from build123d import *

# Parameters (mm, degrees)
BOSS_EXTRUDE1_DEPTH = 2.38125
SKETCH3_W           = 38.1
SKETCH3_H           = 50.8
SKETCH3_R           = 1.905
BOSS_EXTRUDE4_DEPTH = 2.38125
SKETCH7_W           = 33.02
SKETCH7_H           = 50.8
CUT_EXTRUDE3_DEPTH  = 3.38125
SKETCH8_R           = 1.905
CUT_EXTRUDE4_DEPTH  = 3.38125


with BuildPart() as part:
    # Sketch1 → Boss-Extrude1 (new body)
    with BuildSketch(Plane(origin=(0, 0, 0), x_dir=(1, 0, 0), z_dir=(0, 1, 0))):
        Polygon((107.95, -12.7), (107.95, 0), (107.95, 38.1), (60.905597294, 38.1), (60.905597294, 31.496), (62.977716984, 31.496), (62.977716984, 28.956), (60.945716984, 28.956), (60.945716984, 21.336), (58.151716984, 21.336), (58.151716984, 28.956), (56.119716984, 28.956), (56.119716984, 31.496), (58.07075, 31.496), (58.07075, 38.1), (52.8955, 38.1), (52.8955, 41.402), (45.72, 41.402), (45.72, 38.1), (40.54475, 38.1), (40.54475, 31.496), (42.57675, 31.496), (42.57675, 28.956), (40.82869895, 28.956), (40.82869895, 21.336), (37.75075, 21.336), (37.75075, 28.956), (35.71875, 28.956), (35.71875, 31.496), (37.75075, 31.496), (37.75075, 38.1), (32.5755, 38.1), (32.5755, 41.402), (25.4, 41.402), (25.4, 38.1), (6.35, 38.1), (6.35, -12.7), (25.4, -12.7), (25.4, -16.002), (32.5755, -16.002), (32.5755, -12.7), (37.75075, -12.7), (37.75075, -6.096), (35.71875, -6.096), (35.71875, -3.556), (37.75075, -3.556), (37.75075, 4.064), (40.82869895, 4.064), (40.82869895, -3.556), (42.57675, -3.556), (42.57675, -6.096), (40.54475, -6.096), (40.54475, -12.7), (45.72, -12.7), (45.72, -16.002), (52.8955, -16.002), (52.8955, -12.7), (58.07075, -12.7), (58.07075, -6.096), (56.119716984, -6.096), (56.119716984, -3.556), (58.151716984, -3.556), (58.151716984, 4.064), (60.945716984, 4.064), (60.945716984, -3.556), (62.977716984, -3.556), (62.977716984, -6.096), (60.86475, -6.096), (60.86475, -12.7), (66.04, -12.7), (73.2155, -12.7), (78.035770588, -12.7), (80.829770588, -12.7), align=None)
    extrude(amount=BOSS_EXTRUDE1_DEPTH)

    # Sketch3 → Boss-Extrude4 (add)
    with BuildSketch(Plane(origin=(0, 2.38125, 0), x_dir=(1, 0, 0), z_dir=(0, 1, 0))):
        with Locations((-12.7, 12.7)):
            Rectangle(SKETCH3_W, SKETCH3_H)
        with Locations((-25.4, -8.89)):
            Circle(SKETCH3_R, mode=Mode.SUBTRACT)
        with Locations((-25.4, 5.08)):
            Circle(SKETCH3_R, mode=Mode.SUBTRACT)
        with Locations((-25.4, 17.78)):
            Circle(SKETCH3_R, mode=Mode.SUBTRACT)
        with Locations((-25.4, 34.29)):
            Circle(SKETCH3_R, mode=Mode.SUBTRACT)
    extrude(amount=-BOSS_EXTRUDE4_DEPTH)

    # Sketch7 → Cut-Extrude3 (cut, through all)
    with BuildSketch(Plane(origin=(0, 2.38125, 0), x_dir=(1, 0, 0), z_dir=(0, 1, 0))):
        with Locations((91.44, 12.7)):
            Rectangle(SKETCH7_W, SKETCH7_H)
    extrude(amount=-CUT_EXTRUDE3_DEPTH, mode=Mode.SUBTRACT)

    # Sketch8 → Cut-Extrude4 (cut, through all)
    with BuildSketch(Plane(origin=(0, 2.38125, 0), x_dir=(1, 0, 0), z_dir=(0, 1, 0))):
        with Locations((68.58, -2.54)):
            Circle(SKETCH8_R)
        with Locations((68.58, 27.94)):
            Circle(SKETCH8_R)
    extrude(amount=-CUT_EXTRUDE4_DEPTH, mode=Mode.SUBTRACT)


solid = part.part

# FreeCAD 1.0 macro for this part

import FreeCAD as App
import Part
import Sketcher
Q = App.Units.Quantity

doc = App.newDocument("Part")
body = doc.addObject("PartDesign::Body", "Body")

sketch1 = body.newObject("Sketcher::SketchObject", "Sketch")
sketch1.AttachmentSupport = (doc.getObject("XZ_Plane"), [""])
sketch1.MapMode = "FlatFace"
sketch1.addGeometry([
    Part.LineSegment(App.Vector(107.95, 12.7, 0), App.Vector(107.95, -38.1, 0)),
    Part.LineSegment(App.Vector(107.95, -38.1, 0), App.Vector(60.905597, -38.1, 0)),
    Part.LineSegment(App.Vector(60.905597, -38.1, 0), App.Vector(60.905597, -31.496, 0)),
    Part.LineSegment(App.Vector(60.905597, -31.496, 0), App.Vector(62.977717, -31.496, 0)),
    Part.LineSegment(App.Vector(62.977717, -31.496, 0), App.Vector(62.977717, -28.956, 0)),
    Part.LineSegment(App.Vector(62.977717, -28.956, 0), App.Vector(60.945717, -28.956, 0)),
    Part.LineSegment(App.Vector(60.945717, -28.956, 0), App.Vector(60.945717, -21.336, 0)),
    Part.LineSegment(App.Vector(60.945717, -21.336, 0), App.Vector(58.151717, -21.336, 0)),
    Part.LineSegment(App.Vector(58.151717, -21.336, 0), App.Vector(58.151717, -28.956, 0)),
    Part.LineSegment(App.Vector(58.151717, -28.956, 0), App.Vector(56.119717, -28.956, 0)),
    Part.LineSegment(App.Vector(56.119717, -28.956, 0), App.Vector(56.119717, -31.496, 0)),
    Part.LineSegment(App.Vector(56.119717, -31.496, 0), App.Vector(58.07075, -31.496, 0)),
    Part.LineSegment(App.Vector(58.07075, -31.496, 0), App.Vector(58.07075, -38.1, 0)),
    Part.LineSegment(App.Vector(58.07075, -38.1, 0), App.Vector(52.8955, -38.1, 0)),
    Part.LineSegment(App.Vector(52.8955, -38.1, 0), App.Vector(52.8955, -41.402, 0)),
    Part.LineSegment(App.Vector(52.8955, -41.402, 0), App.Vector(45.72, -41.402, 0)),
    Part.LineSegment(App.Vector(45.72, -41.402, 0), App.Vector(45.72, -38.1, 0)),
    Part.LineSegment(App.Vector(45.72, -38.1, 0), App.Vector(40.54475, -38.1, 0)),
    Part.LineSegment(App.Vector(40.54475, -38.1, 0), App.Vector(40.54475, -31.496, 0)),
    Part.LineSegment(App.Vector(40.54475, -31.496, 0), App.Vector(42.57675, -31.496, 0)),
    Part.LineSegment(App.Vector(42.57675, -31.496, 0), App.Vector(42.57675, -28.956, 0)),
    Part.LineSegment(App.Vector(42.57675, -28.956, 0), App.Vector(40.828699, -28.956, 0)),
    Part.LineSegment(App.Vector(40.828699, -28.956, 0), App.Vector(40.828699, -21.336, 0)),
    Part.LineSegment(App.Vector(40.828699, -21.336, 0), App.Vector(37.75075, -21.336, 0)),
    Part.LineSegment(App.Vector(37.75075, -21.336, 0), App.Vector(37.75075, -28.956, 0)),
    Part.LineSegment(App.Vector(37.75075, -28.956, 0), App.Vector(35.71875, -28.956, 0)),
    Part.LineSegment(App.Vector(35.71875, -28.956, 0), App.Vector(35.71875, -31.496, 0)),
    Part.LineSegment(App.Vector(35.71875, -31.496, 0), App.Vector(37.75075, -31.496, 0)),
    Part.LineSegment(App.Vector(37.75075, -31.496, 0), App.Vector(37.75075, -38.1, 0)),
    Part.LineSegment(App.Vector(37.75075, -38.1, 0), App.Vector(32.5755, -38.1, 0)),
    Part.LineSegment(App.Vector(32.5755, -38.1, 0), App.Vector(32.5755, -41.402, 0)),
    Part.LineSegment(App.Vector(32.5755, -41.402, 0), App.Vector(25.4, -41.402, 0)),
    Part.LineSegment(App.Vector(25.4, -41.402, 0), App.Vector(25.4, -38.1, 0)),
    Part.LineSegment(App.Vector(25.4, -38.1, 0), App.Vector(6.35, -38.1, 0)),
    Part.LineSegment(App.Vector(6.35, -38.1, 0), App.Vector(6.35, 12.7, 0)),
    Part.LineSegment(App.Vector(6.35, 12.7, 0), App.Vector(25.4, 12.7, 0)),
    Part.LineSegment(App.Vector(25.4, 12.7, 0), App.Vector(25.4, 16.002, 0)),
    Part.LineSegment(App.Vector(25.4, 16.002, 0), App.Vector(32.5755, 16.002, 0)),
    Part.LineSegment(App.Vector(32.5755, 16.002, 0), App.Vector(32.5755, 12.7, 0)),
    Part.LineSegment(App.Vector(32.5755, 12.7, 0), App.Vector(37.75075, 12.7, 0)),
    Part.LineSegment(App.Vector(37.75075, 12.7, 0), App.Vector(37.75075, 6.096, 0)),
    Part.LineSegment(App.Vector(37.75075, 6.096, 0), App.Vector(35.71875, 6.096, 0)),
    Part.LineSegment(App.Vector(35.71875, 6.096, 0), App.Vector(35.71875, 3.556, 0)),
    Part.LineSegment(App.Vector(35.71875, 3.556, 0), App.Vector(37.75075, 3.556, 0)),
    Part.LineSegment(App.Vector(37.75075, 3.556, 0), App.Vector(37.75075, -4.064, 0)),
    Part.LineSegment(App.Vector(37.75075, -4.064, 0), App.Vector(40.828699, -4.064, 0)),
    Part.LineSegment(App.Vector(40.828699, -4.064, 0), App.Vector(40.828699, 3.556, 0)),
    Part.LineSegment(App.Vector(40.828699, 3.556, 0), App.Vector(42.57675, 3.556, 0)),
    Part.LineSegment(App.Vector(42.57675, 3.556, 0), App.Vector(42.57675, 6.096, 0)),
    Part.LineSegment(App.Vector(42.57675, 6.096, 0), App.Vector(40.54475, 6.096, 0)),
    Part.LineSegment(App.Vector(40.54475, 6.096, 0), App.Vector(40.54475, 12.7, 0)),
    Part.LineSegment(App.Vector(40.54475, 12.7, 0), App.Vector(45.72, 12.7, 0)),
    Part.LineSegment(App.Vector(45.72, 12.7, 0), App.Vector(45.72, 16.002, 0)),
    Part.LineSegment(App.Vector(45.72, 16.002, 0), App.Vector(52.8955, 16.002, 0)),
    Part.LineSegment(App.Vector(52.8955, 16.002, 0), App.Vector(52.8955, 12.7, 0)),
    Part.LineSegment(App.Vector(52.8955, 12.7, 0), App.Vector(58.07075, 12.7, 0)),
    Part.LineSegment(App.Vector(58.07075, 12.7, 0), App.Vector(58.07075, 6.096, 0)),
    Part.LineSegment(App.Vector(58.07075, 6.096, 0), App.Vector(56.119717, 6.096, 0)),
    Part.LineSegment(App.Vector(56.119717, 6.096, 0), App.Vector(56.119717, 3.556, 0)),
    Part.LineSegment(App.Vector(56.119717, 3.556, 0), App.Vector(58.151717, 3.556, 0)),
    Part.LineSegment(App.Vector(58.151717, 3.556, 0), App.Vector(58.151717, -4.064, 0)),
    Part.LineSegment(App.Vector(58.151717, -4.064, 0), App.Vector(60.945717, -4.064, 0)),
    Part.LineSegment(App.Vector(60.945717, -4.064, 0), App.Vector(60.945717, 3.556, 0)),
    Part.LineSegment(App.Vector(60.945717, 3.556, 0), App.Vector(62.977717, 3.556, 0)),
    Part.LineSegment(App.Vector(62.977717, 3.556, 0), App.Vector(62.977717, 6.096, 0)),
    Part.LineSegment(App.Vector(62.977717, 6.096, 0), App.Vector(60.86475, 6.096, 0)),
    Part.LineSegment(App.Vector(60.86475, 6.096, 0), App.Vector(60.86475, 12.7, 0)),
    Part.LineSegment(App.Vector(60.86475, 12.7, 0), App.Vector(107.95, 12.7, 0)),
], False)
sketch1.addConstraint([
    Sketcher.Constraint("Coincident", 0, 2, 1, 1),
    Sketcher.Constraint("Coincident", 1, 2, 2, 1),
    Sketcher.Constraint("Coincident", 2, 2, 3, 1),
    Sketcher.Constraint("Coincident", 3, 2, 4, 1),
    Sketcher.Constraint("Coincident", 4, 2, 5, 1),
    Sketcher.Constraint("Coincident", 5, 2, 6, 1),
    Sketcher.Constraint("Coincident", 6, 2, 7, 1),
    Sketcher.Constraint("Coincident", 7, 2, 8, 1),
    Sketcher.Constraint("Coincident", 8, 2, 9, 1),
    Sketcher.Constraint("Coincident", 9, 2, 10, 1),
    Sketcher.Constraint("Coincident", 10, 2, 11, 1),
    Sketcher.Constraint("Coincident", 11, 2, 12, 1),
    Sketcher.Constraint("Coincident", 12, 2, 13, 1),
    Sketcher.Constraint("Coincident", 13, 2, 14, 1),
    Sketcher.Constraint("Coincident", 14, 2, 15, 1),
    Sketcher.Constraint("Coincident", 15, 2, 16, 1),
    Sketcher.Constraint("Coincident", 16, 2, 17, 1),
    Sketcher.Constraint("Coincident", 17, 2, 18, 1),
    Sketcher.Constraint("Coincident", 18, 2, 19, 1),
    Sketcher.Constraint("Coincident", 19, 2, 20, 1),
    Sketcher.Constraint("Coincident", 20, 2, 21, 1),
    Sketcher.Constraint("Coincident", 21, 2, 22, 1),
    Sketcher.Constraint("Coincident", 22, 2, 23, 1),
    Sketcher.Constraint("Coincident", 23, 2, 24, 1),
    Sketcher.Constraint("Coincident", 24, 2, 25, 1),
    Sketcher.Constraint("Coincident", 25, 2, 26, 1),
    Sketcher.Constraint("Coincident", 26, 2, 27, 1),
    Sketcher.Constraint("Coincident", 27, 2, 28, 1),
    Sketcher.Constraint("Coincident", 28, 2, 29, 1),
    Sketcher.Constraint("Coincident", 29, 2, 30, 1),
    Sketcher.Constraint("Coincident", 30, 2, 31, 1),
    Sketcher.Constraint("Coincident", 31, 2, 32, 1),
    Sketcher.Constraint("Coincident", 32, 2, 33, 1),
    Sketcher.Constraint("Coincident", 33, 2, 34, 1),
    Sketcher.Constraint("Coincident", 34, 2, 35, 1),
    Sketcher.Constraint("Coincident", 35, 2, 36, 1),
    Sketcher.Constraint("Coincident", 36, 2, 37, 1),
    Sketcher.Constraint("Coincident", 37, 2, 38, 1),
    Sketcher.Constraint("Coincident", 38, 2, 39, 1),
    Sketcher.Constraint("Coincident", 39, 2, 40, 1),
    Sketcher.Constraint("Coincident", 40, 2, 41, 1),
    Sketcher.Constraint("Coincident", 41, 2, 42, 1),
    Sketcher.Constraint("Coincident", 42, 2, 43, 1),
    Sketcher.Constraint("Coincident", 43, 2, 44, 1),
    Sketcher.Constraint("Coincident", 44, 2, 45, 1),
    Sketcher.Constraint("Coincident", 45, 2, 46, 1),
    Sketcher.Constraint("Coincident", 46, 2, 47, 1),
    Sketcher.Constraint("Coincident", 47, 2, 48, 1),
    Sketcher.Constraint("Coincident", 48, 2, 49, 1),
    Sketcher.Constraint("Coincident", 49, 2, 50, 1),
    Sketcher.Constraint("Coincident", 50, 2, 51, 1),
    Sketcher.Constraint("Coincident", 51, 2, 52, 1),
    Sketcher.Constraint("Coincident", 52, 2, 53, 1),
    Sketcher.Constraint("Coincident", 53, 2, 54, 1),
    Sketcher.Constraint("Coincident", 54, 2, 55, 1),
    Sketcher.Constraint("Coincident", 55, 2, 56, 1),
    Sketcher.Constraint("Coincident", 56, 2, 57, 1),
    Sketcher.Constraint("Coincident", 57, 2, 58, 1),
    Sketcher.Constraint("Coincident", 58, 2, 59, 1),
    Sketcher.Constraint("Coincident", 59, 2, 60, 1),
    Sketcher.Constraint("Coincident", 60, 2, 61, 1),
    Sketcher.Constraint("Coincident", 61, 2, 62, 1),
    Sketcher.Constraint("Coincident", 62, 2, 63, 1),
    Sketcher.Constraint("Coincident", 63, 2, 64, 1),
    Sketcher.Constraint("Coincident", 64, 2, 65, 1),
    Sketcher.Constraint("Coincident", 65, 2, 66, 1),
    Sketcher.Constraint("Coincident", 66, 2, 67, 1),
    Sketcher.Constraint("Coincident", 67, 2, 0, 1),
    Sketcher.Constraint("Vertical", 0),
    Sketcher.Constraint("Horizontal", 1),
    Sketcher.Constraint("Vertical", 2),
    Sketcher.Constraint("Horizontal", 3),
    Sketcher.Constraint("Vertical", 4),
    Sketcher.Constraint("Horizontal", 5),
    Sketcher.Constraint("Vertical", 6),
    Sketcher.Constraint("Horizontal", 7),
    Sketcher.Constraint("Vertical", 8),
    Sketcher.Constraint("Horizontal", 9),
    Sketcher.Constraint("Vertical", 10),
    Sketcher.Constraint("Horizontal", 11),
    Sketcher.Constraint("Vertical", 12),
    Sketcher.Constraint("Horizontal", 13),
    Sketcher.Constraint("Vertical", 14),
    Sketcher.Constraint("Horizontal", 15),
    Sketcher.Constraint("Vertical", 16),
    Sketcher.Constraint("Horizontal", 17),
    Sketcher.Constraint("Vertical", 18),
    Sketcher.Constraint("Horizontal", 19),
    Sketcher.Constraint("Vertical", 20),
    Sketcher.Constraint("Horizontal", 21),
    Sketcher.Constraint("Vertical", 22),
    Sketcher.Constraint("Horizontal", 23),
    Sketcher.Constraint("Vertical", 24),
    Sketcher.Constraint("Horizontal", 25),
    Sketcher.Constraint("Vertical", 26),
    Sketcher.Constraint("Horizontal", 27),
    Sketcher.Constraint("Vertical", 28),
    Sketcher.Constraint("Horizontal", 29),
    Sketcher.Constraint("Vertical", 30),
    Sketcher.Constraint("Horizontal", 31),
    Sketcher.Constraint("Vertical", 32),
    Sketcher.Constraint("Horizontal", 33),
    Sketcher.Constraint("Vertical", 34),
    Sketcher.Constraint("Horizontal", 35),
    Sketcher.Constraint("Vertical", 36),
    Sketcher.Constraint("Horizontal", 37),
    Sketcher.Constraint("Vertical", 38),
    Sketcher.Constraint("Horizontal", 39),
    Sketcher.Constraint("Vertical", 40),
    Sketcher.Constraint("Horizontal", 41),
    Sketcher.Constraint("Vertical", 42),
    Sketcher.Constraint("Horizontal", 43),
    Sketcher.Constraint("Vertical", 44),
    Sketcher.Constraint("Horizontal", 45),
    Sketcher.Constraint("Vertical", 46),
    Sketcher.Constraint("Horizontal", 47),
    Sketcher.Constraint("Vertical", 48),
    Sketcher.Constraint("Horizontal", 49),
    Sketcher.Constraint("Vertical", 50),
    Sketcher.Constraint("Horizontal", 51),
    Sketcher.Constraint("Vertical", 52),
    Sketcher.Constraint("Horizontal", 53),
    Sketcher.Constraint("Vertical", 54),
    Sketcher.Constraint("Horizontal", 55),
    Sketcher.Constraint("Vertical", 56),
    Sketcher.Constraint("Horizontal", 57),
    Sketcher.Constraint("Vertical", 58),
    Sketcher.Constraint("Horizontal", 59),
    Sketcher.Constraint("Vertical", 60),
    Sketcher.Constraint("Horizontal", 61),
    Sketcher.Constraint("Vertical", 62),
    Sketcher.Constraint("Horizontal", 63),
    Sketcher.Constraint("Vertical", 64),
    Sketcher.Constraint("Horizontal", 65),
    Sketcher.Constraint("Vertical", 66),
    Sketcher.Constraint("Horizontal", 67),
    Sketcher.Constraint("Horizontal", 5, 2, 8, 2),
    Sketcher.Constraint("Horizontal", 3, 2, 10, 2),
    Sketcher.Constraint("Horizontal", 1, 2, 12, 2),
    Sketcher.Constraint("Horizontal", 13, 2, 16, 2),
    Sketcher.Constraint("Horizontal", 11, 2, 18, 2),
    Sketcher.Constraint("Horizontal", 9, 2, 20, 2),
    Sketcher.Constraint("Horizontal", 7, 2, 22, 2),
    Sketcher.Constraint("Horizontal", 21, 2, 24, 2),
    Sketcher.Constraint("Horizontal", 19, 2, 26, 2),
    Sketcher.Constraint("Horizontal", 17, 2, 28, 2),
    Sketcher.Constraint("Horizontal", 15, 2, 30, 2),
    Sketcher.Constraint("Horizontal", 29, 2, 32, 2),
    Sketcher.Constraint("Horizontal", 35, 2, 38, 2),
    Sketcher.Constraint("Horizontal", 43, 2, 46, 2),
    Sketcher.Constraint("Horizontal", 41, 2, 48, 2),
    Sketcher.Constraint("Horizontal", 39, 2, 50, 2),
    Sketcher.Constraint("Horizontal", 37, 2, 52, 2),
    Sketcher.Constraint("Horizontal", 51, 2, 54, 2),
    Sketcher.Constraint("Horizontal", 49, 2, 56, 2),
    Sketcher.Constraint("Horizontal", 47, 2, 58, 2),
    Sketcher.Constraint("Horizontal", 45, 2, 60, 2),
    Sketcher.Constraint("Horizontal", 59, 2, 62, 2),
    Sketcher.Constraint("Horizontal", 57, 2, 64, 2),
    Sketcher.Constraint("Horizontal", 55, 2, 66, 2),
    Sketcher.Constraint("Vertical", 24, 2, 27, 2),
    Sketcher.Constraint("Vertical", 32, 2, 35, 2),
    Sketcher.Constraint("Vertical", 30, 2, 37, 2),
    Sketcher.Constraint("Vertical", 28, 2, 39, 2),
    Sketcher.Constraint("Vertical", 26, 2, 41, 2),
    Sketcher.Constraint("Vertical", 40, 2, 43, 2),
    Sketcher.Constraint("Vertical", 22, 2, 45, 2),
    Sketcher.Constraint("Vertical", 20, 2, 47, 2),
    Sketcher.Constraint("Vertical", 18, 2, 49, 2),
    Sketcher.Constraint("Vertical", 16, 2, 51, 2),
    Sketcher.Constraint("Vertical", 14, 2, 53, 2),
    Sketcher.Constraint("Vertical", 12, 2, 55, 2),
    Sketcher.Constraint("Vertical", 10, 2, 57, 2),
    Sketcher.Constraint("Vertical", 8, 2, 59, 2),
    Sketcher.Constraint("Vertical", 6, 2, 61, 2),
    Sketcher.Constraint("Vertical", 4, 2, 63, 2),
    Sketcher.Constraint("Equal", 5, 9),
    Sketcher.Constraint("Equal", 13, 17),
    Sketcher.Constraint("Equal", 9, 19),
    Sketcher.Constraint("Equal", 19, 25),
    Sketcher.Constraint("Equal", 17, 29),
    Sketcher.Constraint("Equal", 15, 31),
    Sketcher.Constraint("Equal", 32, 36),
    Sketcher.Constraint("Equal", 28, 40),
    Sketcher.Constraint("Equal", 26, 42),
    Sketcher.Constraint("Equal", 24, 44),
    Sketcher.Constraint("DistanceY", 0, 2, 0, 1, Q("2 in")),
    Sketcher.Constraint("DistanceY", 4, 1, 4, 2, Q("0.1 in")),
    Sketcher.Constraint("DistanceY", 6, 1, 6, 2, Q("0.3 in")),
    Sketcher.Constraint("DistanceX", -1, 1, 31, 2, Q("1 in")),
    Sketcher.Constraint("DistanceX", 5, 2, 5, 1, Q("0.08 in")),
    Sketcher.Constraint("DistanceX", 7, 2, 7, 1, Q("0.11 in")),
    Sketcher.Constraint("DistanceX", 33, 2, 33, 1, Q("0.75 in")),
    Sketcher.Constraint("DistanceY", 2, 1, 2, 2, Q("0.26 in")),
    Sketcher.Constraint("DistanceY", 14, 2, 14, 1, Q("0.13 in")),
    Sketcher.Constraint("DistanceY", 0, 2, -1, 1, Q("1.5 in")),
    Sketcher.Constraint("DistanceX", -1, 1, 15, 2, Q("1.8 in")),
    Sketcher.Constraint("DistanceX", -1, 1, 0, 2, Q("4.25 in")),
    Sketcher.Constraint("DistanceX", 15, 2, 15, 1, Q("0.2825 in")),
    Sketcher.Constraint("DistanceX", -1, 1, 25, 2, Q("1.40625 in")),
    Sketcher.Constraint("DistanceX", 3, 1, 3, 2, 2.07212),
    Sketcher.Constraint("DistanceX", 21, 2, 21, 1, 1.748051),
    Sketcher.Constraint("DistanceX", 67, 1, 67, 2, 47.08525),
    Sketcher.Constraint("DistanceX", 1, 2, 1, 1, 47.044403),
])
pad1 = body.newObject("PartDesign::Pad", "Pad")
pad1.Profile = sketch1
pad1.Length = Q("0.09375 in")
pad1.Reversed = True

sketch2 = body.newObject("Sketcher::SketchObject", "Sketch001")
sketch2.AttachmentSupport = (doc.getObject("XZ_Plane"), [""])
sketch2.MapMode = "FlatFace"
sketch2.AttachmentOffset = App.Placement(App.Vector(0, 0, -0.09375 * 25.4), App.Rotation())
sketch2.addGeometry([
    Part.LineSegment(App.Vector(-31.75, -38.1, 0), App.Vector(-31.75, 12.7, 0)),
    Part.LineSegment(App.Vector(-31.75, 12.7, 0), App.Vector(6.35, 12.7, 0)),
    Part.LineSegment(App.Vector(6.35, 12.7, 0), App.Vector(6.35, -38.1, 0)),
    Part.LineSegment(App.Vector(6.35, -38.1, 0), App.Vector(-31.75, -38.1, 0)),
    Part.Circle(App.Vector(-25.4, 8.89, 0), App.Vector(0, 0, 1), 1.905),
    Part.Circle(App.Vector(-25.4, -5.08, 0), App.Vector(0, 0, 1), 1.905),
    Part.Circle(App.Vector(-25.4, -17.78, 0), App.Vector(0, 0, 1), 1.905),
    Part.Circle(App.Vector(-25.4, -34.29, 0), App.Vector(0, 0, 1), 1.905),
], False)
sketch2.addConstraint([
    Sketcher.Constraint("Coincident", 0, 2, 1, 1),
    Sketcher.Constraint("Coincident", 1, 2, 2, 1),
    Sketcher.Constraint("Coincident", 2, 2, 3, 1),
    Sketcher.Constraint("Coincident", 3, 2, 0, 1),
    Sketcher.Constraint("Vertical", 0),
    Sketcher.Constraint("Horizontal", 1),
    Sketcher.Constraint("Vertical", 2),
    Sketcher.Constraint("Horizontal", 3),
    Sketcher.Constraint("Equal", 4, 5),
    Sketcher.Constraint("Equal", 5, 6),
    Sketcher.Constraint("Equal", 6, 7),
    Sketcher.Constraint("Vertical", 4, 3, 5, 3),
    Sketcher.Constraint("Vertical", 5, 3, 6, 3),
    Sketcher.Constraint("Vertical", 6, 3, 7, 3),
    Sketcher.Constraint("Diameter", 4, Q("0.15 in")),
    Sketcher.Constraint("DistanceY", 0, 1, 0, 2, Q("2 in")),
    Sketcher.Constraint("DistanceX", 1, 1, 1, 2, Q("1.5 in")),
    Sketcher.Constraint("DistanceX", 4, 3, -1, 1, Q("1 in")),
    Sketcher.Constraint("DistanceY", 5, 3, -1, 1, Q("0.2 in")),
    Sketcher.Constraint("DistanceY", 6, 3, -1, 1, Q("0.7 in")),
    Sketcher.Constraint("DistanceY", -1, 1, 0, 2, Q("0.5 in")),
    Sketcher.Constraint("DistanceY", 7, 3, 4, 3, Q("1.7 in")),
    Sketcher.Constraint("DistanceY", -1, 1, 4, 3, Q("0.35 in")),
    Sketcher.Constraint("DistanceX", 0, 2, -1, 1, Q("1.25 in")),
])
pad2 = body.newObject("PartDesign::Pad", "Pad001")
pad2.Profile = sketch2
pad2.Length = Q("0.09375 in")

sketch3 = body.newObject("Sketcher::SketchObject", "Sketch002")
sketch3.AttachmentSupport = (doc.getObject("XZ_Plane"), [""])
sketch3.MapMode = "FlatFace"
sketch3.AttachmentOffset = App.Placement(App.Vector(0, 0, -0.09375 * 25.4), App.Rotation())
sketch3.addGeometry([
    Part.LineSegment(App.Vector(74.93, -38.1, 0), App.Vector(74.93, 12.7, 0)),
    Part.LineSegment(App.Vector(74.93, 12.7, 0), App.Vector(107.95, 12.7, 0)),
    Part.LineSegment(App.Vector(107.95, 12.7, 0), App.Vector(107.95, -38.1, 0)),
    Part.LineSegment(App.Vector(107.95, -38.1, 0), App.Vector(74.93, -38.1, 0)),
], False)
sketch3.addConstraint([
    Sketcher.Constraint("Coincident", 0, 2, 1, 1),
    Sketcher.Constraint("Coincident", 1, 2, 2, 1),
    Sketcher.Constraint("Coincident", 2, 2, 3, 1),
    Sketcher.Constraint("Coincident", 3, 2, 0, 1),
    Sketcher.Constraint("Vertical", 0),
    Sketcher.Constraint("Horizontal", 1),
    Sketcher.Constraint("Vertical", 2),
    Sketcher.Constraint("Horizontal", 3),
    Sketcher.Constraint("DistanceY", 0, 1, 0, 2, Q("2 in")),
    Sketcher.Constraint("DistanceX", 1, 1, 1, 2, Q("1.3 in")),
    Sketcher.Constraint("DistanceY", -1, 1, 0, 2, Q("0.5 in")),
    Sketcher.Constraint("DistanceX", -1, 1, 0, 2, Q("2.95 in")),
])
pocket1 = body.newObject("PartDesign::Pocket", "Pocket")
pocket1.Profile = sketch3
pocket1.Type = "ThroughAll"
pocket1.Reversed = True

sketch4 = body.newObject("Sketcher::SketchObject", "Sketch003")
sketch4.AttachmentSupport = (doc.getObject("XZ_Plane"), [""])
sketch4.MapMode = "FlatFace"
sketch4.AttachmentOffset = App.Placement(App.Vector(0, 0, -0.09375 * 25.4), App.Rotation())
sketch4.addGeometry([
    Part.Circle(App.Vector(68.58, 2.54, 0), App.Vector(0, 0, 1), 1.905),
    Part.Circle(App.Vector(68.58, -27.94, 0), App.Vector(0, 0, 1), 1.905),
], False)
sketch4.addConstraint([
    Sketcher.Constraint("Equal", 0, 1),
    Sketcher.Constraint("Vertical", 0, 3, 1, 3),
    Sketcher.Constraint("Diameter", 0, Q("0.15 in")),
    Sketcher.Constraint("DistanceX", -1, 1, 0, 3, Q("2.7 in")),
    Sketcher.Constraint("DistanceY", -1, 1, 0, 3, Q("0.1 in")),
    Sketcher.Constraint("DistanceY", 1, 3, -1, 1, Q("1.1 in")),
])
pocket2 = body.newObject("PartDesign::Pocket", "Pocket001")
pocket2.Profile = sketch4
pocket2.Type = "ThroughAll"
pocket2.Reversed = True

doc.recompute()
